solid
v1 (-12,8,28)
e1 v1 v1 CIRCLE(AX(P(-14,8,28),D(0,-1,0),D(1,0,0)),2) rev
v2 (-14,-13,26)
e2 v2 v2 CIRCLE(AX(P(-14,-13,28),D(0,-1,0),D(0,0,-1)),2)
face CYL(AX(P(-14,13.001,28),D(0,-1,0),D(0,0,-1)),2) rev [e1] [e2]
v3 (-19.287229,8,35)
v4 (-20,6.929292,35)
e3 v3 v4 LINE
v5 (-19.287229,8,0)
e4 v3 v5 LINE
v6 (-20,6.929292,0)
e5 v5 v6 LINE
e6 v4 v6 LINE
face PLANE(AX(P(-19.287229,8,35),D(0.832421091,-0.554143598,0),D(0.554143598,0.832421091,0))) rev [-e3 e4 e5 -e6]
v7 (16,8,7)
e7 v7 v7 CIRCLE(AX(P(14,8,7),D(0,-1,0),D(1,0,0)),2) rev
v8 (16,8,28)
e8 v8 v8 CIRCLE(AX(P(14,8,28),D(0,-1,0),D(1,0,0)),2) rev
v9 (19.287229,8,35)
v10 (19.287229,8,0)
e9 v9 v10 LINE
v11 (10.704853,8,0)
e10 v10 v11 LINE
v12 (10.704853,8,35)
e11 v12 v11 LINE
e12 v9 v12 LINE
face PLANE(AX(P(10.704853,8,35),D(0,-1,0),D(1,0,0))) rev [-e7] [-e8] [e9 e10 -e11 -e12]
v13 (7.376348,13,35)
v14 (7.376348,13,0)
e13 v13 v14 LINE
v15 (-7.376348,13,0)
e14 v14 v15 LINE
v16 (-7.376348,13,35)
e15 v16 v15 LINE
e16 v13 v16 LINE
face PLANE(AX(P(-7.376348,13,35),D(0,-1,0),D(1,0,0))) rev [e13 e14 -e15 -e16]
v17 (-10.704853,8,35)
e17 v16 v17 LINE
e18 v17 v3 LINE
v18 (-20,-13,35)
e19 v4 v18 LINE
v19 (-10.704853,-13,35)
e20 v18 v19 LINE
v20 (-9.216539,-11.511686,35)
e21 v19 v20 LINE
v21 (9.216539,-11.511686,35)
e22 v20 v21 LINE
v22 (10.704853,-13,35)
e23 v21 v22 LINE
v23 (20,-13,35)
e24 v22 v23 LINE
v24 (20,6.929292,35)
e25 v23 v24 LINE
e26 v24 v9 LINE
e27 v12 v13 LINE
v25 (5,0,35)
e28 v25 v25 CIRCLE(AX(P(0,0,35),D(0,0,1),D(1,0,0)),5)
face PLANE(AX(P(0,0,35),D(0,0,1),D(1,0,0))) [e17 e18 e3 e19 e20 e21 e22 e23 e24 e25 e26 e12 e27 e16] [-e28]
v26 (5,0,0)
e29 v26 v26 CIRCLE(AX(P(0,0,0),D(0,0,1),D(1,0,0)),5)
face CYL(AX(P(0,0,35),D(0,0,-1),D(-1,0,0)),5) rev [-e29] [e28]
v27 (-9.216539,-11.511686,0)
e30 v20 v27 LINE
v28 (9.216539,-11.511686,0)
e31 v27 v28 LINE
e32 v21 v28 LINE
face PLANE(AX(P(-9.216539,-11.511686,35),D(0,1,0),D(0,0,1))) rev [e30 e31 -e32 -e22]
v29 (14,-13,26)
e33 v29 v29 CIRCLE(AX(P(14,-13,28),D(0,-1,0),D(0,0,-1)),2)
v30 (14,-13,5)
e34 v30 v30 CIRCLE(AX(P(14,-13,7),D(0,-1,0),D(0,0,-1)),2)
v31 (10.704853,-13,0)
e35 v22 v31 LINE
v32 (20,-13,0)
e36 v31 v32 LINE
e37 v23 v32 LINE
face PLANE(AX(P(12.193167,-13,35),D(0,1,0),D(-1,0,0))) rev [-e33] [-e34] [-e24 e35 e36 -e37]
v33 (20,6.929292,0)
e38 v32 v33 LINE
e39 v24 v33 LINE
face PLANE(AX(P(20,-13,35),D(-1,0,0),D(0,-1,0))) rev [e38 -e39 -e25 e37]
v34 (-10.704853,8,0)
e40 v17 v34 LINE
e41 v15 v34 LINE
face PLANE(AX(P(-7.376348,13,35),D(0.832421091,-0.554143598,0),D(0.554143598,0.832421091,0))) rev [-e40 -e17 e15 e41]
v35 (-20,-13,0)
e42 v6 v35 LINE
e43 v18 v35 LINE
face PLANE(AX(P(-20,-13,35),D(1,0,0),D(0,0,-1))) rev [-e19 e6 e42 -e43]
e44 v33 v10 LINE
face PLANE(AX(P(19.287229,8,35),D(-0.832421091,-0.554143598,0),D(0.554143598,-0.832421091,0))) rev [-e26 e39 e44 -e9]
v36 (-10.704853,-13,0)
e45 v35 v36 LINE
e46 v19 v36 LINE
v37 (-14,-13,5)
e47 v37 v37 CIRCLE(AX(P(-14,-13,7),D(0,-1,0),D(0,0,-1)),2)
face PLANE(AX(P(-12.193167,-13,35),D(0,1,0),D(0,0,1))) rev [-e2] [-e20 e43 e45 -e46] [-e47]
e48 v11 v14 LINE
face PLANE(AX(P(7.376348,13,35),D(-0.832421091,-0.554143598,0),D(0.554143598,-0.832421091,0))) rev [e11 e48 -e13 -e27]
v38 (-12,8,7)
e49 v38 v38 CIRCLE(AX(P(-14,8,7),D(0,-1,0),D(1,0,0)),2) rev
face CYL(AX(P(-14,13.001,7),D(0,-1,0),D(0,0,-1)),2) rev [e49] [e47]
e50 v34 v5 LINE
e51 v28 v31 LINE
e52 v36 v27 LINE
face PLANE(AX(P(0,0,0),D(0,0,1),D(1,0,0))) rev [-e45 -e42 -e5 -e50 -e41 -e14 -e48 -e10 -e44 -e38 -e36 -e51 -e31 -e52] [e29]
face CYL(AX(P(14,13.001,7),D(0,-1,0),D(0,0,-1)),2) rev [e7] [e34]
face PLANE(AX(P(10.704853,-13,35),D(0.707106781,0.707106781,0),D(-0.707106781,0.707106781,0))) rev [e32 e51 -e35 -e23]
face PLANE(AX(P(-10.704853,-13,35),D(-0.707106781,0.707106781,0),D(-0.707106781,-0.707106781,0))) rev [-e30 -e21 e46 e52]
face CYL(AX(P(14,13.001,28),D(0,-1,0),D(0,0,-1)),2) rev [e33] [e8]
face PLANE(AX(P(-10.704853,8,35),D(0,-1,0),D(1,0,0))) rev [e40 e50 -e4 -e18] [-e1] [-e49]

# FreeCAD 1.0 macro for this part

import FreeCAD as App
import Part
import Sketcher
Q = App.Units.Quantity


def add_polygon(sketch, points):
    """Adds a closed chain of lines whose ends are joined by coincident constraints."""
    first, n = sketch.GeometryCount, len(points)
    for a, b in zip(points, points[1:] + points[:1]):
        sketch.addGeometry(Part.LineSegment(App.Vector(*a, 0), App.Vector(*b, 0)), False)
    for i in range(n):
        sketch.addConstraint(Sketcher.Constraint("Coincident", first + i, 2, first + (i + 1) % n, 1))

doc = App.newDocument("Part")
body = doc.addObject("PartDesign::Body", "Body")

# Sketch on XY plane
sketch1 = body.newObject("Sketcher::SketchObject", "Sketch")
sketch1.AttachmentSupport = (doc.getObject("XY_Plane"), [""])
sketch1.MapMode = "FlatFace"
add_polygon(sketch1, [(-7.4, 13), (-10.7, 8), (-19.3, 8), (-20, 6.9), (-20, -13), (-10.7, -13), (-9.2, -11.5), (9.2, -11.5), (10.7, -13), (20, -13), (20, 6.9), (19.3, 8), (10.7, 8), (7.4, 13)])  # lines 0-13
sketch1.addGeometry(Part.Circle(App.Vector(0, 0, 0), App.Vector(0, 0, 1), 5), False)  # 14
sketch1.addConstraint([
    Sketcher.Constraint("Horizontal", 1),
    Sketcher.Constraint("Vertical", 3),
    Sketcher.Constraint("Horizontal", 4),
    Sketcher.Constraint("Horizontal", 6),
    Sketcher.Constraint("Horizontal", 8),
    Sketcher.Constraint("Vertical", 9),
    Sketcher.Constraint("Horizontal", 11),
    Sketcher.Constraint("Horizontal", 13),
    Sketcher.Constraint("Coincident", 14, 3, -1, 1),
    Sketcher.Constraint("Symmetric", 4, 2, 7, 2, -2),
    Sketcher.Constraint("Symmetric", 2, 2, 9, 2, -2),
    Sketcher.Constraint("Symmetric", 1, 2, 10, 2, -2),
    Sketcher.Constraint("Parallel", 0, 2),
    Sketcher.Constraint("Perpendicular", 5, 7),
    Sketcher.Constraint("Parallel", 10, 12),
    Sketcher.Constraint("Vertical", 0, 2, 4, 2),
    Sketcher.Constraint("Vertical", 7, 2, 11, 2),
    Sketcher.Constraint("Equal", 5, 7),
    Sketcher.Constraint("Diameter", 14, Q("10 mm")),
    Sketcher.Constraint("DistanceY", -1, 1, 0, 2, Q("8 mm")),
    Sketcher.Constraint("DistanceX", 2, 2, -1, 1, Q("20 mm")),
    Sketcher.Constraint("DistanceY", 3, 2, -1, 1, Q("13 mm")),
    Sketcher.Constraint("DistanceY", -1, 1, 12, 2, Q("13 mm")),
    Sketcher.Constraint("DistanceX", 0, 2, 12, 2, Q("18.081201 mm")),
    Sketcher.Constraint("DistanceX", 1, 2, 1, 1, Q("8.582376 mm")),
    Sketcher.Constraint("DistanceX", 4, 1, 4, 2, Q("9.295147 mm")),
    Sketcher.Constraint("DistanceX", 6, 1, 6, 2, Q("18.433077 mm")),
])
pad1 = body.newObject("PartDesign::Pad", "Pad")
pad1.Profile = sketch1
pad1.Length = 35

# Sketch on XZ plane
sketch2 = body.newObject("Sketcher::SketchObject", "Sketch001")
sketch2.AttachmentSupport = (doc.getObject("XZ_Plane"), [""])
sketch2.MapMode = "FlatFace"
sketch2.AttachmentOffset = App.Placement(App.Vector(0, 0, 13), App.Rotation())
sketch2.addGeometry(Part.Circle(App.Vector(-14, 28, 0), App.Vector(0, 0, 1), 2), False)
sketch2.addConstraint([
    Sketcher.Constraint("Diameter", 0, Q("4 mm")),
    Sketcher.Constraint("DistanceX", 0, 3, -1, 1, Q("14 mm")),
    Sketcher.Constraint("DistanceY", -1, 1, 0, 3, Q("28 mm")),
])
pocket1 = body.newObject("PartDesign::Pocket", "Pocket")
pocket1.Profile = sketch2
pocket1.Type = "UpToFirst"

# Sketch on XZ plane
sketch3 = body.newObject("Sketcher::SketchObject", "Sketch002")
sketch3.AttachmentSupport = (doc.getObject("XZ_Plane"), [""])
sketch3.MapMode = "FlatFace"
sketch3.AttachmentOffset = App.Placement(App.Vector(0, 0, 13), App.Rotation())
sketch3.addGeometry(Part.Circle(App.Vector(14, 28, 0), App.Vector(0, 0, 1), 2), False)
sketch3.addConstraint([
    Sketcher.Constraint("Diameter", 0, Q("4 mm")),
    Sketcher.Constraint("DistanceX", -1, 1, 0, 3, Q("14 mm")),
    Sketcher.Constraint("DistanceY", -1, 1, 0, 3, Q("28 mm")),
])
pocket2 = body.newObject("PartDesign::Pocket", "Pocket001")
pocket2.Profile = sketch3
pocket2.Type = "UpToFirst"

# Sketch on XZ plane
sketch4 = body.newObject("Sketcher::SketchObject", "Sketch003")
sketch4.AttachmentSupport = (doc.getObject("XZ_Plane"), [""])
sketch4.MapMode = "FlatFace"
sketch4.AttachmentOffset = App.Placement(App.Vector(0, 0, 13), App.Rotation())
sketch4.addGeometry(Part.Circle(App.Vector(14, 7, 0), App.Vector(0, 0, 1), 2), False)
sketch4.addConstraint([
    Sketcher.Constraint("Diameter", 0, Q("4 mm")),
    Sketcher.Constraint("DistanceX", -1, 1, 0, 3, Q("14 mm")),
    Sketcher.Constraint("DistanceY", -1, 1, 0, 3, Q("7 mm")),
])
pocket3 = body.newObject("PartDesign::Pocket", "Pocket002")
pocket3.Profile = sketch4
pocket3.Type = "UpToFirst"

# Sketch on XZ plane
sketch5 = body.newObject("Sketcher::SketchObject", "Sketch004")
sketch5.AttachmentSupport = (doc.getObject("XZ_Plane"), [""])
sketch5.MapMode = "FlatFace"
sketch5.AttachmentOffset = App.Placement(App.Vector(0, 0, 13), App.Rotation())
sketch5.addGeometry(Part.Circle(App.Vector(-14, 7, 0), App.Vector(0, 0, 1), 2), False)
sketch5.addConstraint([
    Sketcher.Constraint("Diameter", 0, Q("4 mm")),
    Sketcher.Constraint("DistanceX", 0, 3, -1, 1, Q("14 mm")),
    Sketcher.Constraint("DistanceY", -1, 1, 0, 3, Q("7 mm")),
])
pocket4 = body.newObject("PartDesign::Pocket", "Pocket003")
pocket4.Profile = sketch5
pocket4.Type = "UpToFirst"

doc.recompute()
